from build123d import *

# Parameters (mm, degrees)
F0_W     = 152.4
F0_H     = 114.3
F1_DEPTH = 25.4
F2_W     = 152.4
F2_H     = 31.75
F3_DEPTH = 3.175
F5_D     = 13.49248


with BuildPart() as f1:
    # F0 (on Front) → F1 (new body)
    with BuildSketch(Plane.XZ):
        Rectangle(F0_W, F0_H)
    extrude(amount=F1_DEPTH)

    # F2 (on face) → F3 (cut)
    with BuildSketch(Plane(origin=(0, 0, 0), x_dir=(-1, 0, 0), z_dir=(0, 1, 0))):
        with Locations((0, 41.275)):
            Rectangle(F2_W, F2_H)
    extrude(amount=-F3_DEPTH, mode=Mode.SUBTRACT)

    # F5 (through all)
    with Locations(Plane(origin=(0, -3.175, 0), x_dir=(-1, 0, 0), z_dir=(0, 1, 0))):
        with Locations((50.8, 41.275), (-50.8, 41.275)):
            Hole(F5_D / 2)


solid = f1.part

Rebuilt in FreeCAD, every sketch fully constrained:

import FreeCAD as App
import Part
import Sketcher
Q = App.Units.Quantity


def add_polygon(sketch, points):
    """Adds a closed chain of lines whose ends are joined by coincident constraints."""
    first, n = sketch.GeometryCount, len(points)
    for a, b in zip(points, points[1:] + points[:1]):
        sketch.addGeometry(Part.LineSegment(App.Vector(*a, 0), App.Vector(*b, 0)), False)
    for i in range(n):
        sketch.addConstraint(Sketcher.Constraint("Coincident", first + i, 2, first + (i + 1) % n, 1))

doc = App.newDocument("Part")
body = doc.addObject("PartDesign::Body", "Body")

# Sketch on XZ plane
sketch1 = doc.addObject("Sketcher::SketchObject", "Sketch")
body.addObject(sketch1)
sketch1.AttachmentSupport = (doc.XZ_Plane, [""])
sketch1.MapMode = "FlatFace"
add_polygon(sketch1, [(-76.2, 57.15), (-76.2, -57.15), (76.2, -57.15), (76.2, 57.15)])  # lines 0-3
sketch1.addConstraint(Sketcher.Constraint("Vertical", 0))
sketch1.addConstraint(Sketcher.Constraint("Horizontal", 1))
sketch1.addConstraint(Sketcher.Constraint("Vertical", 2))
sketch1.addConstraint(Sketcher.Constraint("Horizontal", 3))
sketch1.addConstraint(Sketcher.Constraint("Symmetric", 0, 2, 2, 2, -1, 1))
sketch1.addConstraint(Sketcher.Constraint("DistanceX", 1, 1, 1, 2, Q("6 in")))
sketch1.addConstraint(Sketcher.Constraint("DistanceY", 0, 2, 0, 1, Q("4.5 in")))
pad1 = doc.addObject("PartDesign::Pad", "Pad")
body.addObject(pad1)
pad1.Profile = sketch1
pad1.Length = Q("1 in")

# Sketch on XZ plane
sketch2 = doc.addObject("Sketcher::SketchObject", "Sketch001")
body.addObject(sketch2)
sketch2.AttachmentSupport = (doc.XZ_Plane, [""])
sketch2.MapMode = "FlatFace"
add_polygon(sketch2, [(76.2, 57.15), (76.2, 25.4), (-76.2, 25.4), (-76.2, 57.15)])  # lines 0-3
sketch2.addConstraint(Sketcher.Constraint("Vertical", 0))
sketch2.addConstraint(Sketcher.Constraint("Horizontal", 1))
sketch2.addConstraint(Sketcher.Constraint("Vertical", 2))
sketch2.addConstraint(Sketcher.Constraint("Horizontal", 3))
sketch2.addConstraint(Sketcher.Constraint("DistanceX", 1, 2, 1, 1, Q("6 in")))
sketch2.addConstraint(Sketcher.Constraint("DistanceX", -1, 1, 0, 2, Q("3 in")))
sketch2.addConstraint(Sketcher.Constraint("DistanceY", -1, 1, 0, 2, Q("1 in")))
sketch2.addConstraint(Sketcher.Constraint("DistanceY", 0, 2, 0, 1, Q("1.25 in")))
pocket1 = doc.addObject("PartDesign::Pocket", "Pocket")
body.addObject(pocket1)
pocket1.Profile = sketch2
pocket1.Length = Q("0.125 in")
pocket1.Reversed = True

# Sketch on XZ plane
sketch3 = doc.addObject("Sketcher::SketchObject", "Sketch002")
body.addObject(sketch3)
sketch3.AttachmentSupport = (doc.XZ_Plane, [""])
sketch3.MapMode = "FlatFace"
sketch3.AttachmentOffset = App.Placement(App.Vector(0, 0, 0.125 * 25.4), App.Rotation())
sketch3.addGeometry(Part.Circle(App.Vector(-50.8, 41.275, 0), App.Vector(0, 0, 1), 6.74624), False)
sketch3.addGeometry(Part.Circle(App.Vector(50.8, 41.275, 0), App.Vector(0, 0, 1), 6.74624), False)
sketch3.addConstraint(Sketcher.Constraint("Equal", 0, 1))
sketch3.addConstraint(Sketcher.Constraint("Symmetric", 0, 3, 1, 3, -2))
sketch3.addConstraint(Sketcher.Constraint("DistanceX", 0, 3, -1, 1, Q("2 in")))
sketch3.addConstraint(Sketcher.Constraint("Diameter", 0, Q("0.5312 in")))
sketch3.addConstraint(Sketcher.Constraint("DistanceY", -1, 1, 0, 3, Q("1.625 in")))
doc.recompute()
hole = doc.addObject("PartDesign::Hole", "Hole")
body.addObject(hole)
hole.Profile = sketch3
hole.ThreadType = "None"
hole.Diameter = Q("0.5312 in")
hole.DepthType = "ThroughAll"
hole.Reversed = True

doc.recompute()
